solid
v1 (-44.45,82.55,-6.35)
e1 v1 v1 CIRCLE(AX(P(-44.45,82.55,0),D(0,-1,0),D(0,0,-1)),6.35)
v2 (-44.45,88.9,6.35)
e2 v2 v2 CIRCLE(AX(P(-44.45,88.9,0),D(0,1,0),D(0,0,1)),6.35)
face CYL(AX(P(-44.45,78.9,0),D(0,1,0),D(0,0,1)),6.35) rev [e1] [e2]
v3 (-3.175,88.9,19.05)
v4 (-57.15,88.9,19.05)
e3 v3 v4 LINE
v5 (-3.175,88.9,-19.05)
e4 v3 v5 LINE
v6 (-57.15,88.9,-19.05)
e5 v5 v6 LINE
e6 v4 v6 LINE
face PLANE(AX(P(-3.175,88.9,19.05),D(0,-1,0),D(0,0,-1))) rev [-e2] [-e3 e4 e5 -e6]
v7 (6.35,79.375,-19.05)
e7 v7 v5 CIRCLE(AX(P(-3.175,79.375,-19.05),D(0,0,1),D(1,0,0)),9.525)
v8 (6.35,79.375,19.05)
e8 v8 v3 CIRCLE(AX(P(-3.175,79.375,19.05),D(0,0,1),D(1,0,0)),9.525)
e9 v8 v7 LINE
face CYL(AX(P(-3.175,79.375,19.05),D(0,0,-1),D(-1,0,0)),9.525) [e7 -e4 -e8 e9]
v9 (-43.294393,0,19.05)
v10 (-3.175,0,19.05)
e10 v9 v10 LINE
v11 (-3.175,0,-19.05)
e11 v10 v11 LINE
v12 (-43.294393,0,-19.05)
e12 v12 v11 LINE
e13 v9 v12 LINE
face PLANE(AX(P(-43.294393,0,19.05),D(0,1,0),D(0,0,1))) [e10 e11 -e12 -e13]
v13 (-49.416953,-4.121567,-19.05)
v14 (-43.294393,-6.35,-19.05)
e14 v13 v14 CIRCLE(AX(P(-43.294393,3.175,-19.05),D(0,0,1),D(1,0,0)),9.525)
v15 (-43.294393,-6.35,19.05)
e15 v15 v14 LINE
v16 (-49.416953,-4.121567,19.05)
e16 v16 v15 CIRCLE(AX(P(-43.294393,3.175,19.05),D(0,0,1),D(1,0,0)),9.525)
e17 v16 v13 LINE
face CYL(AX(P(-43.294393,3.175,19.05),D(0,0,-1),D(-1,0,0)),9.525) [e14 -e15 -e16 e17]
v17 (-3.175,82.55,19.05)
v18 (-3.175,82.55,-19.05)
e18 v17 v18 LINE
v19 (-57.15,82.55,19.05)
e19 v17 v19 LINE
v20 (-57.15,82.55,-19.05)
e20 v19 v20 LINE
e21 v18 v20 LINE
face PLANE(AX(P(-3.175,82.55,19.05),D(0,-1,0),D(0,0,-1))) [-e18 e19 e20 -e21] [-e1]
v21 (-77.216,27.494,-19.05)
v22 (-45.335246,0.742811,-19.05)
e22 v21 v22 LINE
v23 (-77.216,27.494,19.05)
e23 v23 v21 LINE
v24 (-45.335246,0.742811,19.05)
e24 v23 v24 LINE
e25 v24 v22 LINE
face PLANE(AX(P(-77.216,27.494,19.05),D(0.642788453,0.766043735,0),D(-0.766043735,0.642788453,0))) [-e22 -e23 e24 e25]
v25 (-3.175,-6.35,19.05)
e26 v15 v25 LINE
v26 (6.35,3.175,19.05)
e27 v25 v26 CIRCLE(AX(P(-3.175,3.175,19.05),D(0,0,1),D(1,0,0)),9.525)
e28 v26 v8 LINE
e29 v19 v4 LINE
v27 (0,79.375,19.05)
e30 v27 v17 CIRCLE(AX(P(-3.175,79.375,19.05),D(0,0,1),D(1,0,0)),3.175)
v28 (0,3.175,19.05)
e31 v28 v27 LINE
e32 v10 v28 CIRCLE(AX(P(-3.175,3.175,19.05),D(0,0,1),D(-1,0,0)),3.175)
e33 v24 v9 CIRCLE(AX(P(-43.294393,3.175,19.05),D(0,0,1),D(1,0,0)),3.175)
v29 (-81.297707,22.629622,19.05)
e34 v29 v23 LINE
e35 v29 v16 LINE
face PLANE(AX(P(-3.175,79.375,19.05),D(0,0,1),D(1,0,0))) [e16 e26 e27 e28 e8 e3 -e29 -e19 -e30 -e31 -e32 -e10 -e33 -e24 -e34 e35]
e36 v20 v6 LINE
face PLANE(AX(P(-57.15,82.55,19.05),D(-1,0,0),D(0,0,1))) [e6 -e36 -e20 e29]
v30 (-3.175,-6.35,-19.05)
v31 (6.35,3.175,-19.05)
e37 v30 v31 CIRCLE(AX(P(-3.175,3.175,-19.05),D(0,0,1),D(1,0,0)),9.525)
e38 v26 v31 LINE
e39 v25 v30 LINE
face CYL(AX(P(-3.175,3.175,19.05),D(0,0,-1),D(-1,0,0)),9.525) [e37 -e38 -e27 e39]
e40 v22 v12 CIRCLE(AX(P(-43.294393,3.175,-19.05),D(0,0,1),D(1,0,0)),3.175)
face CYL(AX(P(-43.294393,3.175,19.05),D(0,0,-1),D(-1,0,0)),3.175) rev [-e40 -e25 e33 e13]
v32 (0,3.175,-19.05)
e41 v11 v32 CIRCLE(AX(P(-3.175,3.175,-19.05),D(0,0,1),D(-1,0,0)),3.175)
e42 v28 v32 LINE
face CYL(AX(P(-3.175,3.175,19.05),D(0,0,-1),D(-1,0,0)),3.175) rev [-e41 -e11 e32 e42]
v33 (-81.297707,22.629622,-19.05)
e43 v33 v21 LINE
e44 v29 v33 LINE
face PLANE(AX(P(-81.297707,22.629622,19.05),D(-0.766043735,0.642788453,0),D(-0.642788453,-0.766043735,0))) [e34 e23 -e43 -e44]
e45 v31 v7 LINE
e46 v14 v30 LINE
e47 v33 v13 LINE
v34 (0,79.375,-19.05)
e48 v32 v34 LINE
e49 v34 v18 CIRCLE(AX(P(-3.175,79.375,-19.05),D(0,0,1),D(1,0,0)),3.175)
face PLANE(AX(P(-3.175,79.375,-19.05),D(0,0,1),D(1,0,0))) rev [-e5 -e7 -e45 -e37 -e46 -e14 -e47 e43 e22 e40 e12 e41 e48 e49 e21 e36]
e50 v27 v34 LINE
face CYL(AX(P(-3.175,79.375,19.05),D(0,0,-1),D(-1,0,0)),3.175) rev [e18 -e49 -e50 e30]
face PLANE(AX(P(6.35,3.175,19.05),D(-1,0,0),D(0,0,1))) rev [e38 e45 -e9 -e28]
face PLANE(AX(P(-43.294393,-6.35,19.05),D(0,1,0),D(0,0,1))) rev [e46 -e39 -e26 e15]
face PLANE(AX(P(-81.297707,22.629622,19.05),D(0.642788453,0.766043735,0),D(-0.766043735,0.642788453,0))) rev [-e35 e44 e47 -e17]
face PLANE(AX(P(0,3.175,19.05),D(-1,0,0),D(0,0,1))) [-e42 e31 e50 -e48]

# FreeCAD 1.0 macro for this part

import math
import FreeCAD as App
import Part
import Sketcher

V = App.Vector
Q = App.Units.Quantity

doc = App.newDocument("Part")
params = doc.addObject("Spreadsheet::Sheet", "Params")
for row, (alias, value) in enumerate([
    ("sketch1_height", "3 in"),
    ("sketch1_radius", "0.375 in"),
    ("sketch1_radius2", "0.125 in"),
    ("pad1_length", "1.5 in"),
    ("sketch2_diameter", "0.5 in"),
    ("pocket1_length", "10 mm"),
], start=1):
    params.set(f"A{row}", alias)
    params.set(f"B{row}", "=" + value)
    params.setAlias(f"B{row}", alias)

body = doc.addObject("PartDesign::Body", "Body")

# Sketch on XY plane
sketch1 = doc.addObject("Sketcher::SketchObject", "Sketch")
body.addObject(sketch1)
sketch1.AttachmentSupport = (doc.XY_Plane, [""])
sketch1.MapMode = "FlatFace"
sketch1.addGeometry([
    Part.LineSegment(V(-45.3, 0.7, 0), V(-77.2, 27.5, 0)),  # 0
    Part.LineSegment(V(-77.2, 27.5, 0), V(-81.3, 22.6, 0)),  # 1
    Part.LineSegment(V(-81.3, 22.6, 0), V(-49.4, -4.1, 0)),  # 2
    Part.ArcOfCircle(Part.Circle(V(-43.3, 3.2, 0), V(0, 0, 1), 9.5), math.radians(-130), math.radians(-90)),  # 3
    Part.LineSegment(V(-43.3, -6.3, 0), V(-3.2, -6.3, 0)),  # 4
    Part.ArcOfCircle(Part.Circle(V(-3.2, 3.2, 0), V(0, 0, 1), 9.5), math.radians(-90), math.radians(0)),  # 5
    Part.LineSegment(V(6.3, 3.2, 0), V(6.3, 79.4, 0)),  # 6
    Part.ArcOfCircle(Part.Circle(V(-3.2, 79.4, 0), V(0, 0, 1), 9.5), math.radians(0), math.radians(90)),  # 7
    Part.LineSegment(V(-3.2, 88.9, 0), V(-57.1, 88.9, 0)),  # 8
    Part.LineSegment(V(-57.1, 88.9, 0), V(-57.1, 82.5, 0)),  # 9
    Part.LineSegment(V(-57.1, 82.5, 0), V(-3.2, 82.5, 0)),  # 10
    Part.ArcOfCircle(Part.Circle(V(-3.2, 79.4, 0), V(0, 0, 1), 3.2), math.radians(0), math.radians(90)),  # 11
    Part.LineSegment(V(0, 79.4, 0), V(0, 3.2, 0)),  # 12
    Part.ArcOfCircle(Part.Circle(V(-3.2, 3.2, 0), V(0, 0, 1), 3.2), math.radians(-90), math.radians(0)),  # 13
    Part.LineSegment(V(-3.2, 0, 0), V(-43.3, 0, 0)),  # 14
    Part.ArcOfCircle(Part.Circle(V(-43.3, 3.2, 0), V(0, 0, 1), 3.2), math.radians(-130), math.radians(-90)),  # 15
], False)
sketch1.addConstraint([
    Sketcher.Constraint("Coincident", 0, 2, 1, 1),
    Sketcher.Constraint("Coincident", 1, 2, 2, 1),
    Sketcher.Constraint("Tangent", 2, 2, 3, 1),
    Sketcher.Constraint("Tangent", 3, 2, 4, 1),
    Sketcher.Constraint("Tangent", 4, 2, 5, 1),
    Sketcher.Constraint("Tangent", 5, 2, 6, 1),
    Sketcher.Constraint("Tangent", 6, 2, 7, 1),
    Sketcher.Constraint("Tangent", 7, 2, 8, 1),
    Sketcher.Constraint("Coincident", 8, 2, 9, 1),
    Sketcher.Constraint("Coincident", 9, 2, 10, 1),
    Sketcher.Constraint("Tangent", 10, 2, 11, 2),
    Sketcher.Constraint("Tangent", 11, 1, 12, 1),
    Sketcher.Constraint("Tangent", 12, 2, 13, 2),
    Sketcher.Constraint("Tangent", 13, 1, 14, 1),
    Sketcher.Constraint("Tangent", 14, 2, 15, 2),
    Sketcher.Constraint("Tangent", 15, 1, 0, 1),
    Sketcher.Constraint("Horizontal", 4),
    Sketcher.Constraint("Vertical", 6),
    Sketcher.Constraint("Horizontal", 8),
    Sketcher.Constraint("Vertical", 9),
    Sketcher.Constraint("Horizontal", 10),
    Sketcher.Constraint("Vertical", 12),
    Sketcher.Constraint("Horizontal", 14),
    Sketcher.Constraint("Coincident", 11, 3, 7, 3),
    Sketcher.Constraint("Coincident", 13, 3, 5, 3),
    Sketcher.Constraint("Coincident", 15, 3, 3, 3),
    Sketcher.Constraint("Equal", 3, 5),
    Sketcher.Constraint("Equal", 5, 7),
    Sketcher.Constraint("PointOnObject", 11, 1, -2),
    Sketcher.Constraint("PointOnObject", 13, 1, -1),
    Sketcher.Constraint("Perpendicular", 0, 1),
    Sketcher.Constraint("Perpendicular", 1, 2),
    Sketcher.Constraint("DistanceY", 6, 1, 6, 2, Q("3 in")),
    Sketcher.Constraint("Radius", 3, Q("0.375 in")),
    Sketcher.Constraint("Radius", 11, Q("0.125 in")),
    Sketcher.Constraint("DistanceX", 8, 2, 6, 2, Q("2.5 in")),
    Sketcher.Constraint("DistanceX", 0, 2, -1, 1, Q("3.04 in")),
    Sketcher.Constraint("DistanceY", -1, 1, 0, 2, Q("27.494 mm")),
    Sketcher.Constraint("DistanceX", 4, 1, 4, 2, Q("40.119393 mm")),
])
sketch1.setExpression("Constraints[32]", "Params.sketch1_height")
sketch1.setExpression("Constraints[33]", "Params.sketch1_radius")
sketch1.setExpression("Constraints[34]", "Params.sketch1_radius2")
pad1 = doc.addObject("PartDesign::Pad", "Pad")
body.addObject(pad1)
pad1.Profile = sketch1
pad1.setExpression("Length", "Params.pad1_length")
pad1.Midplane = True

# Sketch on XZ plane
sketch2 = doc.addObject("Sketcher::SketchObject", "Sketch001")
body.addObject(sketch2)
sketch2.AttachmentSupport = (doc.XZ_Plane, [""])
sketch2.MapMode = "FlatFace"
sketch2.AttachmentOffset = App.Placement(V(0, 0, -3.5 * 25.4), App.Rotation())
sketch2.addGeometry(Part.Circle(V(-44, 0, 0), V(0, 0, 1), 6), False)
sketch2.addConstraint([
    Sketcher.Constraint("PointOnObject", 0, 3, -1),
    Sketcher.Constraint("Diameter", 0, Q("0.5 in")),
    Sketcher.Constraint("DistanceX", 0, 3, -1, 1, Q("1.75 in")),
])
sketch2.setExpression("Constraints[1]", "Params.sketch2_diameter")
pocket1 = doc.addObject("PartDesign::Pocket", "Pocket")
body.addObject(pocket1)
pocket1.Profile = sketch2
pocket1.setExpression("Length", "Params.pocket1_length")
pocket1.Reversed = True

doc.recompute()
